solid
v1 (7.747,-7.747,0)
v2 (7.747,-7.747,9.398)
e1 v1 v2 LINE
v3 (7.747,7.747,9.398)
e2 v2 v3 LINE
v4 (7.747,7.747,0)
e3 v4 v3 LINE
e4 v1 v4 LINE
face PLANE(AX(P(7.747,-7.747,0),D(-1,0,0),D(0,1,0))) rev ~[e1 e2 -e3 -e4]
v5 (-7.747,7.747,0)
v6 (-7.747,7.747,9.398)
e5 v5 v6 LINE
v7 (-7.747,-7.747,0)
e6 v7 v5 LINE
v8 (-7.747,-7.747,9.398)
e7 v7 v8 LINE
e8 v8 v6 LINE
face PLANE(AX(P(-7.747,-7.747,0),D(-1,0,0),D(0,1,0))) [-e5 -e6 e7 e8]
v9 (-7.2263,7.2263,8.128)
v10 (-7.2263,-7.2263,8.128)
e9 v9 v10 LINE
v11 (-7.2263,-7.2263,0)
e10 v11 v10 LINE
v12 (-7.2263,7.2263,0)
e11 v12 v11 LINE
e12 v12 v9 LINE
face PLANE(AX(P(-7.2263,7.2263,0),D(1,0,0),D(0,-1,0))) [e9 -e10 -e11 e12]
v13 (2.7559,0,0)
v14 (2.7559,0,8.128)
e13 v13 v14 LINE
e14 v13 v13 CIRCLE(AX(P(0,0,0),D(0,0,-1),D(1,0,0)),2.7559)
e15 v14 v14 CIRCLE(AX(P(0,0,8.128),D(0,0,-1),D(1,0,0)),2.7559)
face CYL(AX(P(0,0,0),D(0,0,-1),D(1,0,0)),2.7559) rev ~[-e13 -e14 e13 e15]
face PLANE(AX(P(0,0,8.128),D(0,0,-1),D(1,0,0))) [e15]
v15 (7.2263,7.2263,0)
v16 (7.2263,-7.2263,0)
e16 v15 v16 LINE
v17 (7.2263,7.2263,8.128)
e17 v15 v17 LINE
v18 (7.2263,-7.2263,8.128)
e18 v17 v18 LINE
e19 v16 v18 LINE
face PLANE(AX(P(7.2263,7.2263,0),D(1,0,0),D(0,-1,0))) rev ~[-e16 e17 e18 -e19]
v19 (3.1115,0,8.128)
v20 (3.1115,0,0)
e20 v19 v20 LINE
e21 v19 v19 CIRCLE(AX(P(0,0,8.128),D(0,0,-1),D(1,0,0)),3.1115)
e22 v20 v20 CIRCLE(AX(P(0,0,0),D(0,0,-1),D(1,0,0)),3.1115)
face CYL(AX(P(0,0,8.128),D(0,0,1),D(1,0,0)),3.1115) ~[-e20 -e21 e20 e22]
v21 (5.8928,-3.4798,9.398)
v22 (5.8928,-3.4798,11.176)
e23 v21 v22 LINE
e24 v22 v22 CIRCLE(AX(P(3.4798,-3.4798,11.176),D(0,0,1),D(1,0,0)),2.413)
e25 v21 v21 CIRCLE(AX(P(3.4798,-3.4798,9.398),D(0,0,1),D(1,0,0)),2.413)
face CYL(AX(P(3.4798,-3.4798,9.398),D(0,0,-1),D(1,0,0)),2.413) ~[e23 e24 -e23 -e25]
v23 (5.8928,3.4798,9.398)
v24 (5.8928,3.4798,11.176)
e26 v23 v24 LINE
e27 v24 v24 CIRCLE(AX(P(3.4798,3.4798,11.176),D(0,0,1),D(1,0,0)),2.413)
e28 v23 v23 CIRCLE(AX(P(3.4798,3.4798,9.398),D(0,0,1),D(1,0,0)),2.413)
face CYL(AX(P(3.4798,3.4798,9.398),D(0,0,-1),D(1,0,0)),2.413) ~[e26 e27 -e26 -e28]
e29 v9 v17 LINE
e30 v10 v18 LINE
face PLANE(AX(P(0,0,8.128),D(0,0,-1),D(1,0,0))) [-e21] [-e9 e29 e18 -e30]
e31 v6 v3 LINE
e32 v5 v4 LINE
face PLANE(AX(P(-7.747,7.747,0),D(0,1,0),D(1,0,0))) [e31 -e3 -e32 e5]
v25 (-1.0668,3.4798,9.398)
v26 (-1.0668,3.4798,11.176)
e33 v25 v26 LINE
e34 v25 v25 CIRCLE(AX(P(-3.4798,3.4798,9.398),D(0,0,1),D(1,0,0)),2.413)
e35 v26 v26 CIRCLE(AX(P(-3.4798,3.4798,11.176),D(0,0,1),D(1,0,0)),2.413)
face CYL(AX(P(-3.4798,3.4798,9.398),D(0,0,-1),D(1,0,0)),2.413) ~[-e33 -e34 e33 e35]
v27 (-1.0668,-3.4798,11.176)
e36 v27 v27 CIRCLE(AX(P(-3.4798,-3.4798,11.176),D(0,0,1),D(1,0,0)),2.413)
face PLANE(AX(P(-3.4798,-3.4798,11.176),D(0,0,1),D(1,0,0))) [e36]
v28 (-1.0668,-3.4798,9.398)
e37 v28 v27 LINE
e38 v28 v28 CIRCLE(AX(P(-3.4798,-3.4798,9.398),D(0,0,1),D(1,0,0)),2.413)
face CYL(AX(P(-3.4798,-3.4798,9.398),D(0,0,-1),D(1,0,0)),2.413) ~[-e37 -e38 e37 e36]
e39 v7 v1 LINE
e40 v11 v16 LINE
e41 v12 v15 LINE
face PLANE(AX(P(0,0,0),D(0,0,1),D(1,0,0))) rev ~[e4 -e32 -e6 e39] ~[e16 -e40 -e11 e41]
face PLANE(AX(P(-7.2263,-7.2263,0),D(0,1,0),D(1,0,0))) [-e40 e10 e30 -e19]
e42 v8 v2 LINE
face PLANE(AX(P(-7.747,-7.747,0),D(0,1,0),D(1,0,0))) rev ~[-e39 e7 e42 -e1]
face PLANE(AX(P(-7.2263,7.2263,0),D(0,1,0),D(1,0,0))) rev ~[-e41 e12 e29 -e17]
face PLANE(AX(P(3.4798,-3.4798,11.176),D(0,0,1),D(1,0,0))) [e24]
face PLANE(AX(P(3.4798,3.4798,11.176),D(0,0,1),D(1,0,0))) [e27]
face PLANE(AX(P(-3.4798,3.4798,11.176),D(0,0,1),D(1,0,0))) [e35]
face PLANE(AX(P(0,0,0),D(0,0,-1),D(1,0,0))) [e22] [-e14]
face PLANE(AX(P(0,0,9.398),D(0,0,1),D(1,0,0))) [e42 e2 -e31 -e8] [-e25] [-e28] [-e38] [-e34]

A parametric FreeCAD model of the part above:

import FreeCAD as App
import Part
import Sketcher

V = App.Vector
Q = App.Units.Quantity


def add_polygon(sketch, points):
    """Adds a closed chain of lines whose ends are joined by coincident constraints."""
    first, n = sketch.GeometryCount, len(points)
    for a, b in zip(points, points[1:] + points[:1]):
        sketch.addGeometry(Part.LineSegment(App.Vector(*a, 0), App.Vector(*b, 0)), False)
    for i in range(n):
        sketch.addConstraint(Sketcher.Constraint("Coincident", first + i, 2, first + (i + 1) % n, 1))

doc = App.newDocument("Part")
body = doc.addObject("PartDesign::Body", "Body")

# Sketch on XY plane
sketch1 = body.newObject("Sketcher::SketchObject", "Sketch")
sketch1.AttachmentSupport = (doc.getObject("XY_Plane"), [""])
sketch1.MapMode = "FlatFace"
add_polygon(sketch1, [(-8, 8), (-8, -8), (8, -8), (8, 8)])  # lines 0-3
sketch1.addConstraint([
    Sketcher.Constraint("Vertical", 0),
    Sketcher.Constraint("Horizontal", 1),
    Sketcher.Constraint("Vertical", 2),
    Sketcher.Constraint("Horizontal", 3),
    Sketcher.Constraint("Symmetric", 0, 2, 2, 2, -1, 1),
    Sketcher.Constraint("Equal", 3, 0),
    Sketcher.Constraint("DistanceX", 1, 1, 1, 2, Q("0.61 in")),
])
pad1 = body.newObject("PartDesign::Pad", "Pad")
pad1.Profile = sketch1
pad1.Length = Q("0.37 in")

# Sketch on XY plane
sketch2 = body.newObject("Sketcher::SketchObject", "Sketch001")
sketch2.AttachmentSupport = (doc.getObject("XY_Plane"), [""])
sketch2.MapMode = "FlatFace"
sketch2.AttachmentOffset = App.Placement(V(0, 0, 0.37 * 25.4), App.Rotation())
sketch2.addGeometry([
    Part.Circle(V(-3.5, 3.5, 0), V(0, 0, 1), 2.4),
    Part.Circle(V(3.5, 3.5, 0), V(0, 0, 1), 2.4),
    Part.Circle(V(3.5, -3.5, 0), V(0, 0, 1), 2.4),
    Part.Circle(V(-3.5, -3.5, 0), V(0, 0, 1), 2.4),
], False)
sketch2.addConstraint([
    Sketcher.Constraint("Equal", 0, 1),
    Sketcher.Constraint("Equal", 1, 2),
    Sketcher.Constraint("Equal", 2, 3),
    Sketcher.Constraint("Symmetric", 0, 3, 2, 3, -1, 1),
    Sketcher.Constraint("Symmetric", 1, 3, 3, 3, -1, 1),
    Sketcher.Constraint("Symmetric", 0, 3, 1, 3, -2),
    Sketcher.Constraint("Diameter", 0, Q("0.19 in")),
    Sketcher.Constraint("DistanceX", 0, 3, -1, 1, Q("0.137 in")),
    Sketcher.Constraint("DistanceY", -1, 1, 0, 3, Q("0.137 in")),
])
pad2 = body.newObject("PartDesign::Pad", "Pad001")
pad2.Profile = sketch2
pad2.Length = Q("0.07 in")

# Sketch on XY plane
sketch3 = body.newObject("Sketcher::SketchObject", "Sketch002")
sketch3.AttachmentSupport = (doc.getObject("XY_Plane"), [""])
sketch3.MapMode = "FlatFace"
add_polygon(sketch3, [(-7, -7), (-7, 7), (7, 7), (7, -7)])  # lines 0-3
sketch3.addConstraint([
    Sketcher.Constraint("Vertical", 0),
    Sketcher.Constraint("Horizontal", 1),
    Sketcher.Constraint("Vertical", 2),
    Sketcher.Constraint("Horizontal", 3),
    Sketcher.Constraint("Symmetric", 0, 2, 2, 2, -1, 1),
    Sketcher.Constraint("Equal", 3, 0),
    Sketcher.Constraint("DistanceX", 1, 1, 1, 2, Q("0.569 in")),
])
pocket1 = body.newObject("PartDesign::Pocket", "Pocket")
pocket1.Profile = sketch3
pocket1.Length = Q("0.32 in")
pocket1.Reversed = True

# Sketch on XY plane
sketch4 = body.newObject("Sketcher::SketchObject", "Sketch003")
sketch4.AttachmentSupport = (doc.getObject("XY_Plane"), [""])
sketch4.MapMode = "FlatFace"
sketch4.AttachmentOffset = App.Placement(V(0, 0, 0.32 * 25.4), App.Rotation())
sketch4.addGeometry(Part.Circle(V(0, 0, 0), V(0, 0, 1), 3.1), False)
sketch4.addConstraint([
    Sketcher.Constraint("Coincident", 0, 3, -1, 1),
    Sketcher.Constraint("Diameter", 0, Q("0.245 in")),
])
pad3 = body.newObject("PartDesign::Pad", "Pad002")
pad3.Profile = sketch4
pad3.Length = Q("0.32 in")
pad3.Reversed = True

# Sketch on XY plane
sketch5 = body.newObject("Sketcher::SketchObject", "Sketch004")
sketch5.AttachmentSupport = (doc.getObject("XY_Plane"), [""])
sketch5.MapMode = "FlatFace"
sketch5.addGeometry(Part.Circle(V(0, 0, 0), V(0, 0, 1), 2.8), False)
sketch5.addConstraint([
    Sketcher.Constraint("Coincident", 0, 3, -1, 1),
    Sketcher.Constraint("Diameter", 0, Q("0.217 in")),
])
pocket2 = body.newObject("PartDesign::Pocket", "Pocket001")
pocket2.Profile = sketch5
pocket2.Length = Q("0.32 in")
pocket2.Reversed = True

doc.recompute()
